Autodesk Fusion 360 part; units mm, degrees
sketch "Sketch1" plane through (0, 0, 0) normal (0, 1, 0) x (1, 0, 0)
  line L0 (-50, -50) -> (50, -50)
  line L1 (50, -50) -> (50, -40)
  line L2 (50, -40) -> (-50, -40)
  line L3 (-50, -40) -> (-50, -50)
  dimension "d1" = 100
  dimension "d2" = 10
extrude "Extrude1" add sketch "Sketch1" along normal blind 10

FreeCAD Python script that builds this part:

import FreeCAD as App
import Part
import Sketcher
Q = App.Units.Quantity

doc = App.newDocument("Part")
params = doc.addObject("Spreadsheet::Sheet", "Params")
for row, (alias, value) in enumerate([
    ("sketch1_width", "3.937 in"),
    ("pad1_length", "0.3937008 in"),
], start=1):
    params.set(f"A{row}", alias)
    params.set(f"B{row}", "=" + value)
    params.setAlias(f"B{row}", alias)

body = doc.addObject("PartDesign::Body", "Body")

# Sketch on XZ plane
sketch1 = body.newObject("Sketcher::SketchObject", "Sketch")
sketch1.AttachmentSupport = (doc.getObject("XZ_Plane"), [""])
sketch1.MapMode = "FlatFace"
sketch1.addGeometry([
    Part.LineSegment(App.Vector(-50, 40, 0), App.Vector(-50, 50, 0)),
    Part.LineSegment(App.Vector(-50, 50, 0), App.Vector(50, 50, 0)),
    Part.LineSegment(App.Vector(50, 50, 0), App.Vector(50, 40, 0)),
    Part.LineSegment(App.Vector(50, 40, 0), App.Vector(-50, 40, 0)),
], False)
sketch1.addConstraint([
    Sketcher.Constraint("Coincident", 0, 2, 1, 1),
    Sketcher.Constraint("Coincident", 1, 2, 2, 1),
    Sketcher.Constraint("Coincident", 2, 2, 3, 1),
    Sketcher.Constraint("Coincident", 3, 2, 0, 1),
    Sketcher.Constraint("Vertical", 0),
    Sketcher.Constraint("Horizontal", 1),
    Sketcher.Constraint("Vertical", 2),
    Sketcher.Constraint("Horizontal", 3),
    Sketcher.Constraint("DistanceX", 1, 1, 1, 2, Q("3.937 in")),
    Sketcher.Constraint("DistanceY", 0, 1, 0, 2, Q("0.3937 in")),
    Sketcher.Constraint("DistanceX", 0, 2, -1, 1, Q("1.9685 in")),
    Sketcher.Constraint("DistanceY", -1, 1, 0, 2, Q("1.9685 in")),
])
sketch1.setExpression("Constraints[8]", "Params.sketch1_width")
pad1 = body.newObject("PartDesign::Pad", "Pad")
pad1.Profile = sketch1
pad1.setExpression("Length", "Params.pad1_length")
pad1.Reversed = True

doc.recompute()
